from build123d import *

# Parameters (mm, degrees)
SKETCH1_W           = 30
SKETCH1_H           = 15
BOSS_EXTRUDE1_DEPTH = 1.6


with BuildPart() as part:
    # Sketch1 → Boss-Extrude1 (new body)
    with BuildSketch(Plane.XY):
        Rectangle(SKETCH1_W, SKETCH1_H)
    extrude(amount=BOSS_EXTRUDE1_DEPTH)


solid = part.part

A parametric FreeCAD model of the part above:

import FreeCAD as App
import Part
import Sketcher
Q = App.Units.Quantity

doc = App.newDocument("Part")
body = doc.addObject("PartDesign::Body", "Body")

sketch1 = body.newObject("Sketcher::SketchObject", "Sketch")
sketch1.AttachmentSupport = (doc.getObject("XY_Plane"), [""])
sketch1.MapMode = "FlatFace"
sketch1.addGeometry([
    Part.LineSegment(App.Vector(-15, 8, 0), App.Vector(-15, -8, 0)),
    Part.LineSegment(App.Vector(-15, -8, 0), App.Vector(15, -8, 0)),
    Part.LineSegment(App.Vector(15, -8, 0), App.Vector(15, 8, 0)),
    Part.LineSegment(App.Vector(15, 8, 0), App.Vector(-15, 8, 0)),
], False)
sketch1.addConstraint([
    Sketcher.Constraint("Coincident", 0, 2, 1, 1),
    Sketcher.Constraint("Coincident", 1, 2, 2, 1),
    Sketcher.Constraint("Coincident", 2, 2, 3, 1),
    Sketcher.Constraint("Coincident", 3, 2, 0, 1),
    Sketcher.Constraint("Vertical", 0),
    Sketcher.Constraint("Horizontal", 1),
    Sketcher.Constraint("Vertical", 2),
    Sketcher.Constraint("Horizontal", 3),
    Sketcher.Constraint("Symmetric", 0, 2, 2, 2, -1, 1),
    Sketcher.Constraint("DistanceX", 1, 1, 1, 2, Q("30 mm")),
    Sketcher.Constraint("DistanceY", 0, 2, 0, 1, Q("15 mm")),
])
pad1 = body.newObject("PartDesign::Pad", "Pad")
pad1.Profile = sketch1
pad1.Length = 1.6

doc.recompute()
